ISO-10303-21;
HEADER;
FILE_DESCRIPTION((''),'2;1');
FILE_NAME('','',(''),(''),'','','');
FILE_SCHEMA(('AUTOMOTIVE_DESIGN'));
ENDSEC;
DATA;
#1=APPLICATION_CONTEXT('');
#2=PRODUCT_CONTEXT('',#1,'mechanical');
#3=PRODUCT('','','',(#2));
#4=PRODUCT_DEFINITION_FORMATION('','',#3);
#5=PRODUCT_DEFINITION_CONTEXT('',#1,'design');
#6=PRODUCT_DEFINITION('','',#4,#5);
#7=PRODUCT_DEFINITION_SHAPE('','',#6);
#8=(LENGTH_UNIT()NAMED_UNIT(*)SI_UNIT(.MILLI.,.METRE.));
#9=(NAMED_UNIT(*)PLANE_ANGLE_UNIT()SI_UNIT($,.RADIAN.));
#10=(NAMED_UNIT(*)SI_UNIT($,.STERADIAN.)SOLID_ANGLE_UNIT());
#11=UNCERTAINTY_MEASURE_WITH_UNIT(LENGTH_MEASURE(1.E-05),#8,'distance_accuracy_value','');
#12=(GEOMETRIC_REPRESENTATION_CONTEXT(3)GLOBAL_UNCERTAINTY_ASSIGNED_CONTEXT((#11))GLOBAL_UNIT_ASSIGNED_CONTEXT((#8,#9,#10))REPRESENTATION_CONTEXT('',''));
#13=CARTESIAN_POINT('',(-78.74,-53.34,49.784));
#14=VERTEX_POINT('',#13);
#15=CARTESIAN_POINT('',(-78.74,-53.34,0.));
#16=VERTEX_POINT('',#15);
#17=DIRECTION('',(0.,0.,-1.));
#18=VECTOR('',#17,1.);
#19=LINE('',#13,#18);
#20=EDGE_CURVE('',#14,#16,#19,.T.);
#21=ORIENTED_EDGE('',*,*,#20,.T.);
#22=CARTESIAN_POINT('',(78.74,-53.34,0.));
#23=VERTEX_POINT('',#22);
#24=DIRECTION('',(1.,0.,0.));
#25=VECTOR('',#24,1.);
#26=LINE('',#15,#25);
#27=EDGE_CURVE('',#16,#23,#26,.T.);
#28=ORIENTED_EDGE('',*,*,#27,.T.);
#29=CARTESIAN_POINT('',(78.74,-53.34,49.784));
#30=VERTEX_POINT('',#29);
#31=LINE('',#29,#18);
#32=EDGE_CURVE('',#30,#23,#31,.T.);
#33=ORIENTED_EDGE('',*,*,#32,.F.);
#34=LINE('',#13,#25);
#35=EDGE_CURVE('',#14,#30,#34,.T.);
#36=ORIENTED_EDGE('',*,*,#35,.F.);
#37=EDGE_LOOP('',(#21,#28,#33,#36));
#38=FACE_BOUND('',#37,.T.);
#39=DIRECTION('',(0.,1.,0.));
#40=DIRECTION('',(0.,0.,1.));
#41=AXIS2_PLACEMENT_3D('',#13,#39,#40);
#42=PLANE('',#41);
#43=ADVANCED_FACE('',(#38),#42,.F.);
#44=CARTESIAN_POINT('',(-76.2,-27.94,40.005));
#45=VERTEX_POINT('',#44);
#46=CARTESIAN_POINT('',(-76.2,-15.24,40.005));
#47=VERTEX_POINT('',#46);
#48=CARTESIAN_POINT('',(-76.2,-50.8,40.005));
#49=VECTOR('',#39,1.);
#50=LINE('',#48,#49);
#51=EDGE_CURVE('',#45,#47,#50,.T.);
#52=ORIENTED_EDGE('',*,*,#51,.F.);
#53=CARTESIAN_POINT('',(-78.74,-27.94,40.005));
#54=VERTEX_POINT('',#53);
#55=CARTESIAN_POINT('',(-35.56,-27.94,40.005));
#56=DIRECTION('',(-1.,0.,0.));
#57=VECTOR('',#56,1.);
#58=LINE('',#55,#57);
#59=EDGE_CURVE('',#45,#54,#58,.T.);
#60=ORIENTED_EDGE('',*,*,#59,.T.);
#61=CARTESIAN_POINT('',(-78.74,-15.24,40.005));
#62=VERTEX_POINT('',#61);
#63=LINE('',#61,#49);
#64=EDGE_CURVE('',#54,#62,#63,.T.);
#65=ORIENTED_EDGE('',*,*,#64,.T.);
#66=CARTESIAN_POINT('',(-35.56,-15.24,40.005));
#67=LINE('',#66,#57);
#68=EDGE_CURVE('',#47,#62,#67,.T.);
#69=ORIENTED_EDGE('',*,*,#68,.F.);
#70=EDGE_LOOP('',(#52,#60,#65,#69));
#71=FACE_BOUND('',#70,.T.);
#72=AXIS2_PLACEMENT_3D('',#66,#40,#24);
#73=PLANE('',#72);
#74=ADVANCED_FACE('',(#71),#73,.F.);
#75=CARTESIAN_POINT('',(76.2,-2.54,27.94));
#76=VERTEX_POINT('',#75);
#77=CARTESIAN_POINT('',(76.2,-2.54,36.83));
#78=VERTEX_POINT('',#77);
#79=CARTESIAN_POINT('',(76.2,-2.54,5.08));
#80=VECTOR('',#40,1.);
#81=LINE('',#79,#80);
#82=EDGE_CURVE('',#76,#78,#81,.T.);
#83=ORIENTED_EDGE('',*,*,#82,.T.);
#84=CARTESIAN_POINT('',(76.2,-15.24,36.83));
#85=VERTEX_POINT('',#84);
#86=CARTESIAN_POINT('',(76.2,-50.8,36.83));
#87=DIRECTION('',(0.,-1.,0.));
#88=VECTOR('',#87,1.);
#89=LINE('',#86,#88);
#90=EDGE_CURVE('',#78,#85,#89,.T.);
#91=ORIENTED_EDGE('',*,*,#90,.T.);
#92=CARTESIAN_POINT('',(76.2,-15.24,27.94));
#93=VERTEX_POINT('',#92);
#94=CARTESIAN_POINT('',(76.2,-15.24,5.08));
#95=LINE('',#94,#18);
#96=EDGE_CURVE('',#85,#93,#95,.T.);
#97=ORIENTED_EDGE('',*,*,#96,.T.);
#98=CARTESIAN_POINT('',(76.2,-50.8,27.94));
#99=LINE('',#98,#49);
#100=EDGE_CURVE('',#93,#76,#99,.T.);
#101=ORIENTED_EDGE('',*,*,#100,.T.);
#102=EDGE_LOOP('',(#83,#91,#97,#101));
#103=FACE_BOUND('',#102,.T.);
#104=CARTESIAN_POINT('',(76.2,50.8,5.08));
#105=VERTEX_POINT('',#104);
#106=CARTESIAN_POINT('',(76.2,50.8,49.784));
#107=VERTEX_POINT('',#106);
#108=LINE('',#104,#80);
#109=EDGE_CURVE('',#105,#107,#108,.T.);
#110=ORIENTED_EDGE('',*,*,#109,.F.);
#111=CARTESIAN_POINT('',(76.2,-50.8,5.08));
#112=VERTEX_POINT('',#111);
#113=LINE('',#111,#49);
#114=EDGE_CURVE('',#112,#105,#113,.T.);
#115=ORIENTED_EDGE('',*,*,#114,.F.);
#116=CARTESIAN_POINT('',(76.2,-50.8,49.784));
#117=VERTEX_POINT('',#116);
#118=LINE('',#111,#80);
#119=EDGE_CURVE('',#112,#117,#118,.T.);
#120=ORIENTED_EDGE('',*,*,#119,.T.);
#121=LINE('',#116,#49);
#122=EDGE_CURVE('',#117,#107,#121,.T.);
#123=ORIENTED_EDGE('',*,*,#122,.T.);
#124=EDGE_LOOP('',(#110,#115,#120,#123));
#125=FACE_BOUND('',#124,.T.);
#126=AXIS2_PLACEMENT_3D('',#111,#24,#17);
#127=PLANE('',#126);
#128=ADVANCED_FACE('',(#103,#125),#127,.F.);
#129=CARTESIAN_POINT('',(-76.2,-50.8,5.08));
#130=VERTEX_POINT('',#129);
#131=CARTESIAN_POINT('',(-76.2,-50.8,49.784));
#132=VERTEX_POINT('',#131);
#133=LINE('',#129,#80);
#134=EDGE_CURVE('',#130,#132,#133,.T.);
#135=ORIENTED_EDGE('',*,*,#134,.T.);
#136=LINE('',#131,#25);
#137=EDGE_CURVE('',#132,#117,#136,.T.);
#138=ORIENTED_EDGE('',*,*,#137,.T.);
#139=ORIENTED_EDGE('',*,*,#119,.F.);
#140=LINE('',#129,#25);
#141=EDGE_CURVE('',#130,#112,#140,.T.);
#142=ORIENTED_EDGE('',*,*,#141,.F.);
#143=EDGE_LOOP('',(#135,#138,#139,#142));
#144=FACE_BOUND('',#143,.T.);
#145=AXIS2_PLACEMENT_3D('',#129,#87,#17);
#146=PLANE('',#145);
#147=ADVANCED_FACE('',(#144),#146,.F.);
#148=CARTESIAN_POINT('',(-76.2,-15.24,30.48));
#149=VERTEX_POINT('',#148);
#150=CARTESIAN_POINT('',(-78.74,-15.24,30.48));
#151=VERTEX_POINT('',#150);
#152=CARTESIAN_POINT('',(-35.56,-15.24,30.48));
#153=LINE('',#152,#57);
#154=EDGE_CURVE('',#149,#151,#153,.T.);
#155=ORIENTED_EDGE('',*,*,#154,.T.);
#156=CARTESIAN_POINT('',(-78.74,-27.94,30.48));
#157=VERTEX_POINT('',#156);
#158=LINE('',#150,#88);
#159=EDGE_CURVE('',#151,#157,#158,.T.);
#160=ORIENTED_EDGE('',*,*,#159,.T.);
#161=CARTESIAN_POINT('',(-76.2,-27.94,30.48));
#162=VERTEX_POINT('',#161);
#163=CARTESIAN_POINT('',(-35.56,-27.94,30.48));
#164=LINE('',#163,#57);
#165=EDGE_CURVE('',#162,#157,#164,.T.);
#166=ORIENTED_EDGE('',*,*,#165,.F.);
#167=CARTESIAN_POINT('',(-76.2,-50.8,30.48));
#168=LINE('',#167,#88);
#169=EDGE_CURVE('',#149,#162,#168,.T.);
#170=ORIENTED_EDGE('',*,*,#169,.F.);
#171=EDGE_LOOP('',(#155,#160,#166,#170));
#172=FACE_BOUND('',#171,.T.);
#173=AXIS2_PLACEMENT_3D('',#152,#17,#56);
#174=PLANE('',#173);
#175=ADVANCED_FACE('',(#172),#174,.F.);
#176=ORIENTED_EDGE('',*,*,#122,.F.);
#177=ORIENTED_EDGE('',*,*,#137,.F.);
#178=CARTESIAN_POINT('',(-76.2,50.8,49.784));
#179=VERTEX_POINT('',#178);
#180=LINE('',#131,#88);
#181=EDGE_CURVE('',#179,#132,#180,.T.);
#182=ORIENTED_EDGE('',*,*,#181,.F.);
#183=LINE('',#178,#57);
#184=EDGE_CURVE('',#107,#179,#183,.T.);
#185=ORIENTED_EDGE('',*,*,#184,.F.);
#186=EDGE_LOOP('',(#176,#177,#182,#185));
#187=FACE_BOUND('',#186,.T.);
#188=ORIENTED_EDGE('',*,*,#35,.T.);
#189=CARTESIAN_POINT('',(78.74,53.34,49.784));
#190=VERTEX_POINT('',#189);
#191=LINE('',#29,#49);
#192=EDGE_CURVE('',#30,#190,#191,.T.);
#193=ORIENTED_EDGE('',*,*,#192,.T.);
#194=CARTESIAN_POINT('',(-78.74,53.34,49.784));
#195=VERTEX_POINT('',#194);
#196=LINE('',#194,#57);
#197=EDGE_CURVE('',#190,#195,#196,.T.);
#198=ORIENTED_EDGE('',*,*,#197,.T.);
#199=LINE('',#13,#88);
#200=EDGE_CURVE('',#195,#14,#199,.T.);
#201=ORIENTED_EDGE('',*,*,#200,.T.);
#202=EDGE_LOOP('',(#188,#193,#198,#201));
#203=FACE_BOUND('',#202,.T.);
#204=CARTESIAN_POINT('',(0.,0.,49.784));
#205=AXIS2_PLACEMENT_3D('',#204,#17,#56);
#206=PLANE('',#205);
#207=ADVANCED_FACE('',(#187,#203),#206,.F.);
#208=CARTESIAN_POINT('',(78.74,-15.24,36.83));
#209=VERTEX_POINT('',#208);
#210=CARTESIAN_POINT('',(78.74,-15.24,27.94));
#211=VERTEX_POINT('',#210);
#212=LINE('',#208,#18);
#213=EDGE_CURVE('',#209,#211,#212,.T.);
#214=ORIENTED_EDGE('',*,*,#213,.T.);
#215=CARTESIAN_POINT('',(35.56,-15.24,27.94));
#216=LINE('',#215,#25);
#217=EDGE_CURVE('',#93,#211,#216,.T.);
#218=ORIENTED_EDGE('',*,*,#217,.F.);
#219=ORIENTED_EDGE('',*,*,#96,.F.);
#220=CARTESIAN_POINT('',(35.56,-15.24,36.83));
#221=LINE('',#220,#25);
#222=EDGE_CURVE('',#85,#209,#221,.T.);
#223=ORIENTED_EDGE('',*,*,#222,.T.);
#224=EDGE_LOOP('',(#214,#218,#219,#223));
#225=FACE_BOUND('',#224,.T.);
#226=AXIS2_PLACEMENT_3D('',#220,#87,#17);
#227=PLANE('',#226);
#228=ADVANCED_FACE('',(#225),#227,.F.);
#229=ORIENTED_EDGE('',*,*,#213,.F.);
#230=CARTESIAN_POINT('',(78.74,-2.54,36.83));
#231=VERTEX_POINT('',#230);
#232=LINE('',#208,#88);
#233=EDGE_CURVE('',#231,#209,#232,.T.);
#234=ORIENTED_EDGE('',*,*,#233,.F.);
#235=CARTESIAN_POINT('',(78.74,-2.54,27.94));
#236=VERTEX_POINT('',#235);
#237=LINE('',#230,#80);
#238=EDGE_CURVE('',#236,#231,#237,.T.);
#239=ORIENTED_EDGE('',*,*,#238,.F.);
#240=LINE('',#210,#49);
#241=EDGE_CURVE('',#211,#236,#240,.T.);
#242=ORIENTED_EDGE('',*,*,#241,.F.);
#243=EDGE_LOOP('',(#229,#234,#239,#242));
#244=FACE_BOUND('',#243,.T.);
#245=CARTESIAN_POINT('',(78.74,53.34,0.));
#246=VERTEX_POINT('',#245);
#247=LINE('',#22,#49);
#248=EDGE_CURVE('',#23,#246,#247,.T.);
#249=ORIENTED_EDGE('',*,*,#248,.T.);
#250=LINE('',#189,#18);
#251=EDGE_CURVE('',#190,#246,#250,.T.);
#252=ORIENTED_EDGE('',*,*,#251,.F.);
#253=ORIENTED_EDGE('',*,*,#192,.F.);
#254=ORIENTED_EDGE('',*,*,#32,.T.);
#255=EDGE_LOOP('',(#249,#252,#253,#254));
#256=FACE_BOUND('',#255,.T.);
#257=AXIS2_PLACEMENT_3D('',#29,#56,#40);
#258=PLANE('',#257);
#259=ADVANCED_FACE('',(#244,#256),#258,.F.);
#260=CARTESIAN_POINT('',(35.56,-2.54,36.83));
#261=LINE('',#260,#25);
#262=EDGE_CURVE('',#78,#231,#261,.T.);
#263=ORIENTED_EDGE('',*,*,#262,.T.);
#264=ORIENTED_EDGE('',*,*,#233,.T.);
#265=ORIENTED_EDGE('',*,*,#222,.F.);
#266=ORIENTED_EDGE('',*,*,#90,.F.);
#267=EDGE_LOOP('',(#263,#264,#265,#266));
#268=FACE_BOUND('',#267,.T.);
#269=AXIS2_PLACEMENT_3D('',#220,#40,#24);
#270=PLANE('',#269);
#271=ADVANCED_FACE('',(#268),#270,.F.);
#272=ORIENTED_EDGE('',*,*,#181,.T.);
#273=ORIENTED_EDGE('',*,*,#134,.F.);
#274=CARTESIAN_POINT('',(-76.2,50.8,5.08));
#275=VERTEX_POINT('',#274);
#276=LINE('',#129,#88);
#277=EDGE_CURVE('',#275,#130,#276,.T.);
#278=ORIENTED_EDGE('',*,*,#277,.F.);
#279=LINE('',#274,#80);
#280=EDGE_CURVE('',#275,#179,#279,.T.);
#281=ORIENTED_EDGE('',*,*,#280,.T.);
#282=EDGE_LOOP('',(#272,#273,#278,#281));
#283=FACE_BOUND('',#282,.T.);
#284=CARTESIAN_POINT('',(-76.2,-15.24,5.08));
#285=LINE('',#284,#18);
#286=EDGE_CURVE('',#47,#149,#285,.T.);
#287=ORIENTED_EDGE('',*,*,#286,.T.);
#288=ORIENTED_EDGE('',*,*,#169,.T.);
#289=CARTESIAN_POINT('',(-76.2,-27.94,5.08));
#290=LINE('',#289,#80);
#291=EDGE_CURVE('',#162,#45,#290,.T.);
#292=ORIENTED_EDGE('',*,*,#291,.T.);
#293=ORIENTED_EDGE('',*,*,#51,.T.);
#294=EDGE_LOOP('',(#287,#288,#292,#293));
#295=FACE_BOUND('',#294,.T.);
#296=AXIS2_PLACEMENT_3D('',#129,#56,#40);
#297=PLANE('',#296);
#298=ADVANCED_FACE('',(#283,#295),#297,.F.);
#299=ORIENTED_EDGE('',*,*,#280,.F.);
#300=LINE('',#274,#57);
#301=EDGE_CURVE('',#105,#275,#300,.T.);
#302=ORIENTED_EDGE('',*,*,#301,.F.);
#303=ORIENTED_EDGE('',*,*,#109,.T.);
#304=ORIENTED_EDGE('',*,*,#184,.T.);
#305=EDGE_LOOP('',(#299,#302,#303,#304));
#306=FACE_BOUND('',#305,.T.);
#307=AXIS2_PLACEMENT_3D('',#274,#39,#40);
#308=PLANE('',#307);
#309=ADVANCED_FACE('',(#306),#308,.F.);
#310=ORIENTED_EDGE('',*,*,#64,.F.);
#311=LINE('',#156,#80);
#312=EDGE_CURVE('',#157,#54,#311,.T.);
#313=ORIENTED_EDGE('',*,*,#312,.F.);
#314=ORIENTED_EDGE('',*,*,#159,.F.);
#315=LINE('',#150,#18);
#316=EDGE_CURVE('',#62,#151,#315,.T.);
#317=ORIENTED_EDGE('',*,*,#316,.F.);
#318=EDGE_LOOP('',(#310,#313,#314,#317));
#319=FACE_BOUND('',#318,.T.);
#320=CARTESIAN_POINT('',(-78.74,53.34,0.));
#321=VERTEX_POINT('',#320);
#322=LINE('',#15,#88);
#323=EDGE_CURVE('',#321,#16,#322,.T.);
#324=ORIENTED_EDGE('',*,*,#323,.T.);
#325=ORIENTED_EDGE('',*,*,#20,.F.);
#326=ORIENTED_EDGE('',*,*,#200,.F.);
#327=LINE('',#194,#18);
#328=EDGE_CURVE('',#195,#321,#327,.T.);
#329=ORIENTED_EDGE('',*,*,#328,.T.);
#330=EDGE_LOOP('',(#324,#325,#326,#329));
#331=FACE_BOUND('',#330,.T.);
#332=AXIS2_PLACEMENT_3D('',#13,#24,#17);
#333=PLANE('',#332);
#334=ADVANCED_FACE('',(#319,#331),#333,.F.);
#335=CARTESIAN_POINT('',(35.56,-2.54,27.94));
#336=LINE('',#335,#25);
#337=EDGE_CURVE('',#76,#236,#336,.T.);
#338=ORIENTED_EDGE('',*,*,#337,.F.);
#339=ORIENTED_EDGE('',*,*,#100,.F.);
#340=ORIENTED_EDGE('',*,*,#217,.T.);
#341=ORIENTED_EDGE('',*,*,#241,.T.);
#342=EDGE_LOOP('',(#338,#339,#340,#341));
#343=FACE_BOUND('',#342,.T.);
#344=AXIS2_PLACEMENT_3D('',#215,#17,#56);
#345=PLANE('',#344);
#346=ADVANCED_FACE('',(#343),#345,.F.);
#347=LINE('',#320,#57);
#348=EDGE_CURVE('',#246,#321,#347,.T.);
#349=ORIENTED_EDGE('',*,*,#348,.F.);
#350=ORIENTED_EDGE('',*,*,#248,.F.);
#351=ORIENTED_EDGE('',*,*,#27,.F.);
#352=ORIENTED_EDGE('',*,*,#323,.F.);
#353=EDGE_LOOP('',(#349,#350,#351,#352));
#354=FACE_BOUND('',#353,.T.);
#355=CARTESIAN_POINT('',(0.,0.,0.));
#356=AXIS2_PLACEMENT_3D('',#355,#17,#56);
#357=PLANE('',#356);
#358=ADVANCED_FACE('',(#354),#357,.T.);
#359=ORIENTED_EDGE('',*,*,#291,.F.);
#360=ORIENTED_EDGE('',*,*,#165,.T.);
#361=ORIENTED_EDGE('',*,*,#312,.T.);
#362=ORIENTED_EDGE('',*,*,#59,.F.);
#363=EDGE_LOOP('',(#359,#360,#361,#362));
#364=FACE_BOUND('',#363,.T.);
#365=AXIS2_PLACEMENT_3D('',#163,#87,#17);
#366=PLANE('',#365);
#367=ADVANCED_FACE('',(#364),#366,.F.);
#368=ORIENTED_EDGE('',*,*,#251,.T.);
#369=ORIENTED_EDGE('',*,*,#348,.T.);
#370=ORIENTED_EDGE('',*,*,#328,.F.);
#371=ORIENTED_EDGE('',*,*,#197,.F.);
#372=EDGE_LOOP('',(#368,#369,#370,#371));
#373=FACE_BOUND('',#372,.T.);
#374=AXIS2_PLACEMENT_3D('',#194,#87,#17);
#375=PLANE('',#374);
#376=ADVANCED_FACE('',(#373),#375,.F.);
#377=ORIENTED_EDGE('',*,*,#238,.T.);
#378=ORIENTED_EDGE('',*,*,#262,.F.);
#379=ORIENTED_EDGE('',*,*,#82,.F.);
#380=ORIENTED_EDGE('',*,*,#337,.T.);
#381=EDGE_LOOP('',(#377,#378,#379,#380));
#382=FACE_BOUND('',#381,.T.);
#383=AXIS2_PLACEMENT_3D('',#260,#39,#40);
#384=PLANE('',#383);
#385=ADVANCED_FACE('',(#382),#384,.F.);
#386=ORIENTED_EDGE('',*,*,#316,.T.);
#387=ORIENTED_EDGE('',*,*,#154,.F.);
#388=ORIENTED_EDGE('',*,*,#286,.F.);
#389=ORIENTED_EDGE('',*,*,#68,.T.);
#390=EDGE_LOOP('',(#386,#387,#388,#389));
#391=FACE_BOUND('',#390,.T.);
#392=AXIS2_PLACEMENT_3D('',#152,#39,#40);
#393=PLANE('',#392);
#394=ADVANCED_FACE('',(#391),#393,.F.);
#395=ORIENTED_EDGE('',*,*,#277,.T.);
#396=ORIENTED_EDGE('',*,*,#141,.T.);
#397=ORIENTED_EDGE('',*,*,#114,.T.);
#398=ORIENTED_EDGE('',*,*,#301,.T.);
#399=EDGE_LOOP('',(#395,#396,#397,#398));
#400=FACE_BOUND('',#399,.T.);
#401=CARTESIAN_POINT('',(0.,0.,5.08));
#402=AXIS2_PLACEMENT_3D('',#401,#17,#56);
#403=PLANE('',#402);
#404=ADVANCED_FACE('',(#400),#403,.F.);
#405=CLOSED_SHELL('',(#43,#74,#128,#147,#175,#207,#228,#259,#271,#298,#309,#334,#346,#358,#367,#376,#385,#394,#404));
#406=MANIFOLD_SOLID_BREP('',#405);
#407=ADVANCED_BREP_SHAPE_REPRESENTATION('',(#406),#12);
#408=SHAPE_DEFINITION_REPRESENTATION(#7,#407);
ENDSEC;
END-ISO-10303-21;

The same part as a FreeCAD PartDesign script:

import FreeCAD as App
import Part
import Sketcher
Q = App.Units.Quantity


def add_polygon(sketch, points):
    """Adds a closed chain of lines whose ends are joined by coincident constraints."""
    first, n = sketch.GeometryCount, len(points)
    for a, b in zip(points, points[1:] + points[:1]):
        sketch.addGeometry(Part.LineSegment(App.Vector(*a, 0), App.Vector(*b, 0)), False)
    for i in range(n):
        sketch.addConstraint(Sketcher.Constraint("Coincident", first + i, 2, first + (i + 1) % n, 1))

doc = App.newDocument("Part")
body = doc.addObject("PartDesign::Body", "Body")

# Sketch on XY plane
sketch1 = body.newObject("Sketcher::SketchObject", "Sketch")
sketch1.AttachmentSupport = (doc.getObject("XY_Plane"), [""])
sketch1.MapMode = "FlatFace"
add_polygon(sketch1, [(-79, 53), (-79, -53), (79, -53), (79, 53)])  # lines 0-3
sketch1.addConstraint(Sketcher.Constraint("Vertical", 0))
sketch1.addConstraint(Sketcher.Constraint("Horizontal", 1))
sketch1.addConstraint(Sketcher.Constraint("Vertical", 2))
sketch1.addConstraint(Sketcher.Constraint("Horizontal", 3))
sketch1.addConstraint(Sketcher.Constraint("Symmetric", 0, 2, 2, 2, -1, 1))
sketch1.addConstraint(Sketcher.Constraint("DistanceX", 1, 1, 1, 2, Q("6.2 in")))
sketch1.addConstraint(Sketcher.Constraint("DistanceY", 0, 2, 0, 1, Q("4.2 in")))
pad1 = body.newObject("PartDesign::Pad", "Pad")
pad1.Profile = sketch1
pad1.Length = Q("1.96 in")

# Sketch on XY plane
sketch2 = body.newObject("Sketcher::SketchObject", "Sketch001")
sketch2.AttachmentSupport = (doc.getObject("XY_Plane"), [""])
sketch2.MapMode = "FlatFace"
sketch2.AttachmentOffset = App.Placement(App.Vector(0, 0, 1.96 * 25.4), App.Rotation())
add_polygon(sketch2, [(-76, 51), (-76, -51), (76, -51), (76, 51)])  # lines 0-3
sketch2.addConstraint(Sketcher.Constraint("Vertical", 0))
sketch2.addConstraint(Sketcher.Constraint("Horizontal", 1))
sketch2.addConstraint(Sketcher.Constraint("Vertical", 2))
sketch2.addConstraint(Sketcher.Constraint("Horizontal", 3))
sketch2.addConstraint(Sketcher.Constraint("Symmetric", 0, 2, 2, 2, -1, 1))
sketch2.addConstraint(Sketcher.Constraint("DistanceX", 1, 1, 1, 2, Q("6 in")))
sketch2.addConstraint(Sketcher.Constraint("DistanceY", 0, 2, 0, 1, Q("4 in")))
pocket1 = body.newObject("PartDesign::Pocket", "Pocket")
pocket1.Profile = sketch2
pocket1.Length = Q("1.76 in")

# Sketch on YZ plane
sketch3 = body.newObject("Sketcher::SketchObject", "Sketch002")
sketch3.AttachmentSupport = (doc.getObject("YZ_Plane"), [""])
sketch3.MapMode = "FlatFace"
sketch3.AttachmentOffset = App.Placement(App.Vector(0, 0, 3.1 * 25.4), App.Rotation())
add_polygon(sketch3, [(-3, 37), (-15, 37), (-15, 28), (-3, 28)])  # lines 0-3
sketch3.addConstraint(Sketcher.Constraint("Horizontal", 0))
sketch3.addConstraint(Sketcher.Constraint("Vertical", 1))
sketch3.addConstraint(Sketcher.Constraint("Horizontal", 2))
sketch3.addConstraint(Sketcher.Constraint("Vertical", 3))
sketch3.addConstraint(Sketcher.Constraint("DistanceX", 0, 2, 0, 1, Q("0.5 in")))
sketch3.addConstraint(Sketcher.Constraint("DistanceY", 1, 2, 1, 1, Q("0.35 in")))
sketch3.addConstraint(Sketcher.Constraint("DistanceX", 0, 2, -1, 1, Q("0.6 in")))
sketch3.addConstraint(Sketcher.Constraint("DistanceY", -1, 1, 1, 2, Q("1.1 in")))
pocket2 = body.newObject("PartDesign::Pocket", "Pocket001")
pocket2.Profile = sketch3
pocket2.Length = Q("1.7 in")

# Sketch on YZ plane
sketch4 = body.newObject("Sketcher::SketchObject", "Sketch003")
sketch4.AttachmentSupport = (doc.getObject("YZ_Plane"), [""])
sketch4.MapMode = "FlatFace"
sketch4.AttachmentOffset = App.Placement(App.Vector(0, 0, -3.1 * 25.4), App.Rotation())
add_polygon(sketch4, [(-15, 30), (-28, 30), (-28, 40), (-15, 40)])  # lines 0-3
sketch4.addConstraint(Sketcher.Constraint("Horizontal", 0))
sketch4.addConstraint(Sketcher.Constraint("Vertical", 1))
sketch4.addConstraint(Sketcher.Constraint("Horizontal", 2))
sketch4.addConstraint(Sketcher.Constraint("Vertical", 3))
sketch4.addConstraint(Sketcher.Constraint("DistanceX", 0, 2, 0, 1, Q("0.5 in")))
sketch4.addConstraint(Sketcher.Constraint("DistanceX", 0, 2, -1, 1, Q("1.1 in")))
sketch4.addConstraint(Sketcher.Constraint("DistanceY", -1, 1, 0, 2, Q("1.2 in")))
sketch4.addConstraint(Sketcher.Constraint("DistanceY", 1, 1, 1, 2, Q("0.375 in")))
pocket3 = body.newObject("PartDesign::Pocket", "Pocket002")
pocket3.Profile = sketch4
pocket3.Length = Q("1.7 in")
pocket3.Reversed = True

doc.recompute()
